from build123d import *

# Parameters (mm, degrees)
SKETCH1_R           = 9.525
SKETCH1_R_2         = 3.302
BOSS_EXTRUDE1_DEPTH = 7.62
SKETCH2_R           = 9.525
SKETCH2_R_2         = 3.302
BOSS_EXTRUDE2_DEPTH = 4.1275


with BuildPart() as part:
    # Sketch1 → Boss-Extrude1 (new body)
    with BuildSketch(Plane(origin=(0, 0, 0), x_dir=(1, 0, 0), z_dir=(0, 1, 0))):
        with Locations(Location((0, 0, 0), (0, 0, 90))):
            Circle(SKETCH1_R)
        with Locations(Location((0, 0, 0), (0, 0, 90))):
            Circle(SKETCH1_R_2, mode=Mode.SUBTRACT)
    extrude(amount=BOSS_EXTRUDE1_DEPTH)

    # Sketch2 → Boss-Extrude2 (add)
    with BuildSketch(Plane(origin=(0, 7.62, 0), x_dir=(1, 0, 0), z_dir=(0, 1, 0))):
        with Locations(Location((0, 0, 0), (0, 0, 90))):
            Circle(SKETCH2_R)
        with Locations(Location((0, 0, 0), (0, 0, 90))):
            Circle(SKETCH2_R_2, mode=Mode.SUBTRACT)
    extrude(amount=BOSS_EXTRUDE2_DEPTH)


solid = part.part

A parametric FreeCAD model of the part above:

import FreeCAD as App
import Part
import Sketcher
from FreeCAD import Vector
Q = App.Units.Quantity

doc = App.newDocument("Part")
body = doc.addObject("PartDesign::Body", "Body")

sketch1 = doc.addObject("Sketcher::SketchObject", "Sketch")
body.addObject(sketch1)
sketch1.AttachmentSupport = (doc.XZ_Plane, [""])
sketch1.MapMode = "FlatFace"
sketch1.addGeometry(Part.Circle(Vector(0, 0, 0), Vector(0, 0, 1), 9.5), False)
sketch1.addGeometry(Part.Circle(Vector(0, 0, 0), Vector(0, 0, 1), 3.3), False)
sketch1.addConstraint(Sketcher.Constraint("Coincident", 0, 3, -1, 1))
sketch1.addConstraint(Sketcher.Constraint("Coincident", 1, 3, -1, 1))
sketch1.addConstraint(Sketcher.Constraint("Diameter", 0, Q("0.75 in")))
sketch1.addConstraint(Sketcher.Constraint("Diameter", 1, Q("0.26 in")))
pad1 = doc.addObject("PartDesign::Pad", "Pad")
body.addObject(pad1)
pad1.Profile = sketch1
pad1.Length = Q("0.3 in")
pad1.Reversed = True

sketch2 = doc.addObject("Sketcher::SketchObject", "Sketch001")
body.addObject(sketch2)
sketch2.AttachmentSupport = (doc.XZ_Plane, [""])
sketch2.MapMode = "FlatFace"
sketch2.AttachmentOffset = App.Placement(Vector(0, 0, -0.3 * 25.4), App.Rotation())
sketch2.addGeometry(Part.Circle(Vector(0, 0, 0), Vector(0, 0, 1), 9.5), False)
sketch2.addGeometry(Part.Circle(Vector(0, 0, 0), Vector(0, 0, 1), 3.3), False)
sketch2.addConstraint(Sketcher.Constraint("Coincident", 0, 3, -1, 1))
sketch2.addConstraint(Sketcher.Constraint("Coincident", 1, 3, -1, 1))
sketch2.addConstraint(Sketcher.Constraint("Diameter", 0, Q("0.75 in")))
sketch2.addConstraint(Sketcher.Constraint("Diameter", 1, Q("0.26 in")))
pad2 = doc.addObject("PartDesign::Pad", "Pad001")
body.addObject(pad2)
pad2.Profile = sketch2
pad2.Length = Q("0.1625 in")
pad2.Reversed = True

doc.recompute()
